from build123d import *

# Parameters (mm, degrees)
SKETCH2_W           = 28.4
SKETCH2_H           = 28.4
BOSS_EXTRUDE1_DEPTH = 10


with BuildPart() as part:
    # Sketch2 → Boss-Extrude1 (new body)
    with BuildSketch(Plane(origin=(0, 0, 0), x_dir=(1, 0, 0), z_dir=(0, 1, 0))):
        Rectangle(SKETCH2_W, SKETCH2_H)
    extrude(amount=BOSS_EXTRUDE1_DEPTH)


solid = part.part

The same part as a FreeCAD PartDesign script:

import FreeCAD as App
import Part
import Sketcher
from FreeCAD import Vector
Q = App.Units.Quantity


def add_polygon(sketch, points):
    """Adds a closed chain of lines whose ends are joined by coincident constraints."""
    first, n = sketch.GeometryCount, len(points)
    for a, b in zip(points, points[1:] + points[:1]):
        sketch.addGeometry(Part.LineSegment(App.Vector(*a, 0), App.Vector(*b, 0)), False)
    for i in range(n):
        sketch.addConstraint(Sketcher.Constraint("Coincident", first + i, 2, first + (i + 1) % n, 1))

doc = App.newDocument("Part")
body = doc.addObject("PartDesign::Body", "Body")

sketch1 = doc.addObject("Sketcher::SketchObject", "Sketch")
body.addObject(sketch1)
sketch1.AttachmentSupport = (doc.XZ_Plane, [""])
sketch1.MapMode = "FlatFace"
add_polygon(sketch1, [(-14, -14), (-14, 14), (14, 14), (14, -14)])
sketch1.addConstraint([
    Sketcher.Constraint("Vertical", 0),
    Sketcher.Constraint("Horizontal", 1),
    Sketcher.Constraint("Vertical", 2),
    Sketcher.Constraint("Horizontal", 3),
    Sketcher.Constraint("Symmetric", 0, 2, 2, 2, -1, 1),
    Sketcher.Constraint("Equal", 3, 0),
    Sketcher.Constraint("DistanceX", 1, 1, 1, 2, Q("28.4 mm")),
])
pad1 = doc.addObject("PartDesign::Pad", "Pad")
body.addObject(pad1)
pad1.Profile = sketch1
pad1.Length = 10
pad1.Reversed = True

doc.recompute()
